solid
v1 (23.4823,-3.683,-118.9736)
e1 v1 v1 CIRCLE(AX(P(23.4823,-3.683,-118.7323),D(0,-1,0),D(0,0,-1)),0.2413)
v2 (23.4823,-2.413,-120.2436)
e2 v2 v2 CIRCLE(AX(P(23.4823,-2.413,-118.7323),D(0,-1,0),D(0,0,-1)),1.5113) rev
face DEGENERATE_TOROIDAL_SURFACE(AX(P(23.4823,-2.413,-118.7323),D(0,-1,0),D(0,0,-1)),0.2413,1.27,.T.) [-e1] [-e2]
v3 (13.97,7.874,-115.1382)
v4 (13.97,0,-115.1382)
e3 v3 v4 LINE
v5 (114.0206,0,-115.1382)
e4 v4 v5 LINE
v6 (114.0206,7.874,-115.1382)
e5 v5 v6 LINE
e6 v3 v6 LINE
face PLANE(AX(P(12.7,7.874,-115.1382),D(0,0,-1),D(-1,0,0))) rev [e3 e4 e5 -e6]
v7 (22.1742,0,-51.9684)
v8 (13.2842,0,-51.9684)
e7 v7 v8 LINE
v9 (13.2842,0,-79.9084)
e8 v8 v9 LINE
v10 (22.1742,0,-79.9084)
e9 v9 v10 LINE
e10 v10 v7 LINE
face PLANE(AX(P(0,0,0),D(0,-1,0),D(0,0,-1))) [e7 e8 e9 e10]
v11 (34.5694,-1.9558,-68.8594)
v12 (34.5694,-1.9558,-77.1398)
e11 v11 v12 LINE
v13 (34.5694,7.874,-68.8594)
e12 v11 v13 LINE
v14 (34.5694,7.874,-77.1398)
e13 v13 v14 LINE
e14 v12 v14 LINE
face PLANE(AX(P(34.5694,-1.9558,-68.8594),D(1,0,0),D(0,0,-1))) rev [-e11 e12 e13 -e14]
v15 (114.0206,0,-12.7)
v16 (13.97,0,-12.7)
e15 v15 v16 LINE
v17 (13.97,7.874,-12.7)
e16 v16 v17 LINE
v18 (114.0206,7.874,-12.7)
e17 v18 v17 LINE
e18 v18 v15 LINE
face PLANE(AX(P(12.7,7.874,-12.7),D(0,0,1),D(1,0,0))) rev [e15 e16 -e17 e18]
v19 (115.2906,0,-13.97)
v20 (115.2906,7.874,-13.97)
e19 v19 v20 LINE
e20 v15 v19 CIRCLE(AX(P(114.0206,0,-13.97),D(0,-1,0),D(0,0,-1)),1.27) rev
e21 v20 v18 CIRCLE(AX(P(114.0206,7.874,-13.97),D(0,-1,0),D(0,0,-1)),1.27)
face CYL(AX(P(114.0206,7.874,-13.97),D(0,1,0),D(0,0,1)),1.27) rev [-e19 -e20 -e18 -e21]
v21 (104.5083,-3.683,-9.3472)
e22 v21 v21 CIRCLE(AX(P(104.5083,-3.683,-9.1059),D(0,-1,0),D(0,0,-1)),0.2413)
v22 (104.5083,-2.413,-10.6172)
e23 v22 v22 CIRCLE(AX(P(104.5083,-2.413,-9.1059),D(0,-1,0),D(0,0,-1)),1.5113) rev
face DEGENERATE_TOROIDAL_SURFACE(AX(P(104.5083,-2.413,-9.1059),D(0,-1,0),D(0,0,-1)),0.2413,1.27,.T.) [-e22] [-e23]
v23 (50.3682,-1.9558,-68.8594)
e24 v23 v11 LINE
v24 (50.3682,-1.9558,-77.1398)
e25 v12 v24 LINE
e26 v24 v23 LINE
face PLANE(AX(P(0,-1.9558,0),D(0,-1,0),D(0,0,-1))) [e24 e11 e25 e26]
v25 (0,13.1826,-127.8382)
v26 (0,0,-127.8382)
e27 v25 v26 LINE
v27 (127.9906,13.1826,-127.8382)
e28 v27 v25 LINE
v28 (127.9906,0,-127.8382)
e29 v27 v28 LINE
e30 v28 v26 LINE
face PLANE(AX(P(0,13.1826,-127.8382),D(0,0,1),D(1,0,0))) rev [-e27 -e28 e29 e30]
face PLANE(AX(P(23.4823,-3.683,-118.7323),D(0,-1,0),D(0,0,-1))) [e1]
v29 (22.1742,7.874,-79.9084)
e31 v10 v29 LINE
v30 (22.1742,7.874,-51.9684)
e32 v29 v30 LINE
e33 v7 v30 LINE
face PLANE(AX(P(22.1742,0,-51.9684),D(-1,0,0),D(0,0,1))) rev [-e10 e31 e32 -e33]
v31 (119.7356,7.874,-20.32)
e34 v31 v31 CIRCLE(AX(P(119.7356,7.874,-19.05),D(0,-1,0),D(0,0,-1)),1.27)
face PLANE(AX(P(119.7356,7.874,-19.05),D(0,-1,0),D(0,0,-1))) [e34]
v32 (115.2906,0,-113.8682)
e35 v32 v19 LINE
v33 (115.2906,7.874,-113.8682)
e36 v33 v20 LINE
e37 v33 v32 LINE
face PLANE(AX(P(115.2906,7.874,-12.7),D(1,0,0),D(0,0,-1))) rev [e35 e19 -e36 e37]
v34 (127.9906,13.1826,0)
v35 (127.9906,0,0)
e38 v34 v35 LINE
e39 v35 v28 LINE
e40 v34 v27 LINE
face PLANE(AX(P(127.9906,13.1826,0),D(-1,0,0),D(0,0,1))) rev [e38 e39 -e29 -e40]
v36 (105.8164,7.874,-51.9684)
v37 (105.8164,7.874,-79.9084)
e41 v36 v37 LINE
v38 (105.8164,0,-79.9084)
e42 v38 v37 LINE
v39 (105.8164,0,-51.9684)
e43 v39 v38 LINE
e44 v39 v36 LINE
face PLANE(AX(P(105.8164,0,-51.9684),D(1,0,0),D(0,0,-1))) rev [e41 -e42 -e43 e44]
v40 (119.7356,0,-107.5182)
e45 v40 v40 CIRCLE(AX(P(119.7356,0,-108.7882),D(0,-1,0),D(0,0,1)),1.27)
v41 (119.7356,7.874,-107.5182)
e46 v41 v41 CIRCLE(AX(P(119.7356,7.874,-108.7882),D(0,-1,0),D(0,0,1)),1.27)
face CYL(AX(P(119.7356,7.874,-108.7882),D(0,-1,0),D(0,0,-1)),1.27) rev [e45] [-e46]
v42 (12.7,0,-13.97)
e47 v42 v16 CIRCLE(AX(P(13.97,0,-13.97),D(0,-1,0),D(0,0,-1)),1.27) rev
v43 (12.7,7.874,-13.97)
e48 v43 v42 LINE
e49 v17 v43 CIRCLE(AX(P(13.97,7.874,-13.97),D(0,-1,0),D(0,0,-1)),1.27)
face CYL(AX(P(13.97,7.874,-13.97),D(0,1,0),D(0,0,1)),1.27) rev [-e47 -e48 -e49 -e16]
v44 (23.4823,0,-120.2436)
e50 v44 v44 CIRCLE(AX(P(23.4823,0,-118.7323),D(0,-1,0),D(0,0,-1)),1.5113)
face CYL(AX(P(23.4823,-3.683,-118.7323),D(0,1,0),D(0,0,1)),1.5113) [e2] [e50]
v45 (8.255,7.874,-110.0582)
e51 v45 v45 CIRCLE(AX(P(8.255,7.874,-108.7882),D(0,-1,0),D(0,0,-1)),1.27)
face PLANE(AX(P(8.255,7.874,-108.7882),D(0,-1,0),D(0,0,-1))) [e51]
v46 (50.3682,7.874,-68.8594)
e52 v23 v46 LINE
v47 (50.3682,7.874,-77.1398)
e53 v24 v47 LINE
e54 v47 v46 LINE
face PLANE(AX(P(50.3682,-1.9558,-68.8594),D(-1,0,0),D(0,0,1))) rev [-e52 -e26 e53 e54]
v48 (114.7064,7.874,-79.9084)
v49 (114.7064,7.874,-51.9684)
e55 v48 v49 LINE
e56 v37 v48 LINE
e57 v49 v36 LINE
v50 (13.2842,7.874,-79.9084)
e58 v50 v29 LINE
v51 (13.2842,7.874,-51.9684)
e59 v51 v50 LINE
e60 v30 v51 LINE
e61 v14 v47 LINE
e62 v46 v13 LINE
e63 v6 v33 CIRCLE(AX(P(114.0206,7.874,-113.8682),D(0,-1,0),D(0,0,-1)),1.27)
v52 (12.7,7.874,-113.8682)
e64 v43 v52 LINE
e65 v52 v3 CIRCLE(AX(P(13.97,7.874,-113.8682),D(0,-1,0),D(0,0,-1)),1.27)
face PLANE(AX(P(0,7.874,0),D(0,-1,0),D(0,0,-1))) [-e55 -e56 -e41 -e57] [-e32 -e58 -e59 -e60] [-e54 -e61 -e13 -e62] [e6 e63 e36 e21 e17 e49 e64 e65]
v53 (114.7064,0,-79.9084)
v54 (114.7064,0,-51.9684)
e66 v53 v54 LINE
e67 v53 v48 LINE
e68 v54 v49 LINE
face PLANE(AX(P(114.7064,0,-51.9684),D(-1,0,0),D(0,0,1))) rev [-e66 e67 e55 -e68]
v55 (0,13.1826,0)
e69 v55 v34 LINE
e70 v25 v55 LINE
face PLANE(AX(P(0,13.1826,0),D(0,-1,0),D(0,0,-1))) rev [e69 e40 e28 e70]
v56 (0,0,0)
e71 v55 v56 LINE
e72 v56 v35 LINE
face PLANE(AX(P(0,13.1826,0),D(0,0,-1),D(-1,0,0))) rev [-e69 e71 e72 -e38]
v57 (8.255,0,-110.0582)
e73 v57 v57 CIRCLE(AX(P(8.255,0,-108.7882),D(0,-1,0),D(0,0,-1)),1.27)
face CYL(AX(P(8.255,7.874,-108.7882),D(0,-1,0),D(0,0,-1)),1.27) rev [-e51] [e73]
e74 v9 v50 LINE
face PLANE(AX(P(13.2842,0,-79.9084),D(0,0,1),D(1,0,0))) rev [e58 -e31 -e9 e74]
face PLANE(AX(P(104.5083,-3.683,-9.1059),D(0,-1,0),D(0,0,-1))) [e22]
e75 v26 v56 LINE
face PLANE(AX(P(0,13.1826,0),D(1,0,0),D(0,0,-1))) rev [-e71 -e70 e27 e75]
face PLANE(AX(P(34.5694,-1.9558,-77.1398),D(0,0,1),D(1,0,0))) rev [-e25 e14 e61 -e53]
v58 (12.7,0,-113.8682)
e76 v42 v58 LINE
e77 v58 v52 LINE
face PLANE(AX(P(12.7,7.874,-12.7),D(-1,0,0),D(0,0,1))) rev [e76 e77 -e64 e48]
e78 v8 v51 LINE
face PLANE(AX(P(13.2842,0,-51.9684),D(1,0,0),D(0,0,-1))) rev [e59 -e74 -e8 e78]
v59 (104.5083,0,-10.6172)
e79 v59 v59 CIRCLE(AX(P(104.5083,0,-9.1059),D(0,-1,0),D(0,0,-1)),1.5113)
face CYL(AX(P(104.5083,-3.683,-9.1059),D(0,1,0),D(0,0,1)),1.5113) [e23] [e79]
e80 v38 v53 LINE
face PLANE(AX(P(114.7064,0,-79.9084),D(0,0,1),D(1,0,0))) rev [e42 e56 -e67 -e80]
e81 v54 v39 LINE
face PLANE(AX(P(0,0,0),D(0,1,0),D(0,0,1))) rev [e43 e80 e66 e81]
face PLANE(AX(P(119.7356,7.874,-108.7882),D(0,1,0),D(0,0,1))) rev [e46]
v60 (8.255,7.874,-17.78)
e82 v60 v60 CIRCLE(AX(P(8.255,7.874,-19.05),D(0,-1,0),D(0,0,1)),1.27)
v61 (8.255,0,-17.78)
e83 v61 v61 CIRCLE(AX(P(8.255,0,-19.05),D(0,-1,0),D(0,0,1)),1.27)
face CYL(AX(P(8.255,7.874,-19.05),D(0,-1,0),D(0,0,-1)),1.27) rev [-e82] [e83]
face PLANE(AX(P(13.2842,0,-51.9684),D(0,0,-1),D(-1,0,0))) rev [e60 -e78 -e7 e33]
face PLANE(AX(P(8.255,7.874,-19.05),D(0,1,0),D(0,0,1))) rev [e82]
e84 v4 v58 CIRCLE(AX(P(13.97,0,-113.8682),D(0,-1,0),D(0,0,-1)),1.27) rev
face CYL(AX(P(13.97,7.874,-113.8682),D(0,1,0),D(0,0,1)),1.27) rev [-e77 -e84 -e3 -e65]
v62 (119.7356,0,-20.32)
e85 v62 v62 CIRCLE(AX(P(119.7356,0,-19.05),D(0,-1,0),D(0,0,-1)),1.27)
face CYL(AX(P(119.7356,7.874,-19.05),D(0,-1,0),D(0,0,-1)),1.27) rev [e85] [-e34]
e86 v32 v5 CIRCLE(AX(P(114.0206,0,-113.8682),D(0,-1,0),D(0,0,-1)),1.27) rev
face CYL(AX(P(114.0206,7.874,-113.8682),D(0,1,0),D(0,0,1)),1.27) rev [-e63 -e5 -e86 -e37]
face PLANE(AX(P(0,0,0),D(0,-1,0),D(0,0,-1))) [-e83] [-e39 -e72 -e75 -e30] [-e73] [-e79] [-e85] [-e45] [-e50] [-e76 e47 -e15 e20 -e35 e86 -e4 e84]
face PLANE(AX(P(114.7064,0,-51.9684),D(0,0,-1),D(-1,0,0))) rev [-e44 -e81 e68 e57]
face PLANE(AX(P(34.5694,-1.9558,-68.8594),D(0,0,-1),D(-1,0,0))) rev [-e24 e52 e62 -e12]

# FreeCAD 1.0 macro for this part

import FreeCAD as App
import Part
import Sketcher
Q = App.Units.Quantity


def edges_at(feature, points):
    """Names of the edges that pass closest to the given points."""
    edges = feature.Shape.Edges
    near = lambda p: min(range(len(edges)), key=lambda i: edges[i].distToShape(Part.Vertex(*p))[0])
    return sorted({f"Edge{near(p) + 1}" for p in points})


def add_polygon(sketch, points):
    """Adds a closed chain of lines whose ends are joined by coincident constraints."""
    first, n = sketch.GeometryCount, len(points)
    for a, b in zip(points, points[1:] + points[:1]):
        sketch.addGeometry(Part.LineSegment(App.Vector(*a, 0), App.Vector(*b, 0)), False)
    for i in range(n):
        sketch.addConstraint(Sketcher.Constraint("Coincident", first + i, 2, first + (i + 1) % n, 1))

doc = App.newDocument("Part")
params = doc.addObject("Spreadsheet::Sheet", "Params")
for row, (alias, value) in enumerate([
    ("sketch1_width", "5.039 in"),
    ("sketch1_height", "5.033 in"),
    ("pad1_length", "0.519 in"),
    ("sketch2_width", "4.039 in"),
    ("sketch2_height", "4.033 in"),
    ("pocket1_length", "0.31 in"),
    ("sketch3_diameter", "0.1 in"),
    ("pocket2_length", "0.31 in"),
    ("sketch4_width", "0.622 in"),
    ("sketch4_height", "0.326 in"),
    ("pad2_length", "0.387 in"),
    ("sketch5_height", "1.1 in"),
    ("sketch5_width", "0.35 in"),
    ("pad3_length", "0.31 in"),
    ("sketch6_diameter", "0.119 in"),
    ("pad4_length", "0.145 in"),
    ("fillet_radius", "0.05 in"),
    ("fillet2_radius", "0.05 in"),
    ("fillet3_radius", "0.05 in"),
    ("fillet4_radius", "0.05 in"),
    ("fillet5_radius", "0.05 in"),
    ("fillet6_radius", "0.05 in"),
], start=1):
    params.set(f"A{row}", alias)
    params.set(f"B{row}", "=" + value)
    params.setAlias(f"B{row}", alias)

body = doc.addObject("PartDesign::Body", "Body")

# Sketch on XZ plane
sketch1 = doc.addObject("Sketcher::SketchObject", "Sketch")
body.addObject(sketch1)
sketch1.AttachmentSupport = (doc.XZ_Plane, [""])
sketch1.MapMode = "FlatFace"
add_polygon(sketch1, [(0, -128), (0, 0), (128, 0), (128, -128)])  # lines 0-3
sketch1.addConstraint([
    Sketcher.Constraint("Vertical", 0),
    Sketcher.Constraint("Horizontal", 1),
    Sketcher.Constraint("Vertical", 2),
    Sketcher.Constraint("Horizontal", 3),
    Sketcher.Constraint("Coincident", 0, 2, -1, 1),
    Sketcher.Constraint("DistanceX", 1, 1, 1, 2, Q("5.039 in")),
    Sketcher.Constraint("DistanceY", 0, 1, 0, 2, Q("5.033 in")),
])
sketch1.setExpression("Constraints[9]", "Params.sketch1_width")
sketch1.setExpression("Constraints[10]", "Params.sketch1_height")
pad1 = doc.addObject("PartDesign::Pad", "Pad")
body.addObject(pad1)
pad1.Profile = sketch1
pad1.setExpression("Length", "Params.pad1_length")
pad1.Reversed = True

# Sketch on XZ plane
sketch2 = doc.addObject("Sketcher::SketchObject", "Sketch001")
body.addObject(sketch2)
sketch2.AttachmentSupport = (doc.XZ_Plane, [""])
sketch2.MapMode = "FlatFace"
add_polygon(sketch2, [(13, -13), (13, -115), (115, -115), (115, -13)])  # lines 0-3
sketch2.addConstraint([
    Sketcher.Constraint("Vertical", 0),
    Sketcher.Constraint("Horizontal", 1),
    Sketcher.Constraint("Vertical", 2),
    Sketcher.Constraint("Horizontal", 3),
    Sketcher.Constraint("DistanceX", -1, 1, 0, 2, Q("0.5 in")),
    Sketcher.Constraint("DistanceY", 2, 2, -1, 1, Q("0.5 in")),
    Sketcher.Constraint("DistanceX", 1, 1, 1, 2, Q("4.039 in")),
    Sketcher.Constraint("DistanceY", 0, 2, 0, 1, Q("4.033 in")),
])
sketch2.setExpression("Constraints[10]", "Params.sketch2_width")
sketch2.setExpression("Constraints[11]", "Params.sketch2_height")
pocket1 = doc.addObject("PartDesign::Pocket", "Pocket")
body.addObject(pocket1)
pocket1.Profile = sketch2
pocket1.setExpression("Length", "Params.pocket1_length")

# Sketch on XZ plane
sketch3 = doc.addObject("Sketcher::SketchObject", "Sketch002")
body.addObject(sketch3)
sketch3.AttachmentSupport = (doc.XZ_Plane, [""])
sketch3.MapMode = "FlatFace"
sketch3.addGeometry([
    Part.Circle(App.Vector(8.3, -108.8, 0), App.Vector(0, 0, 1), 1.3),
    Part.Circle(App.Vector(8.3, -19.1, 0), App.Vector(0, 0, 1), 1.3),
    Part.Circle(App.Vector(119.7, -108.8, 0), App.Vector(0, 0, 1), 1.3),
    Part.Circle(App.Vector(119.7, -19.1, 0), App.Vector(0, 0, 1), 1.3),
], False)
sketch3.addConstraint([
    Sketcher.Constraint("Equal", 0, 1),
    Sketcher.Constraint("Equal", 1, 2),
    Sketcher.Constraint("Equal", 2, 3),
    Sketcher.Constraint("Horizontal", 0, 3, 2, 3),
    Sketcher.Constraint("Horizontal", 1, 3, 3, 3),
    Sketcher.Constraint("Vertical", 0, 3, 1, 3),
    Sketcher.Constraint("Vertical", 2, 3, 3, 3),
    Sketcher.Constraint("Diameter", 0, Q("0.1 in")),
    Sketcher.Constraint("DistanceY", 1, 3, -1, 1, Q("0.75 in")),
    Sketcher.Constraint("DistanceX", -1, 1, 0, 3, Q("0.325 in")),
    Sketcher.Constraint("DistanceY", 0, 3, -1, 1, Q("4.283 in")),
    Sketcher.Constraint("DistanceX", -1, 1, 2, 3, Q("4.714 in")),
])
sketch3.setExpression("Constraints[7]", "Params.sketch3_diameter")
pocket2 = doc.addObject("PartDesign::Pocket", "Pocket001")
body.addObject(pocket2)
pocket2.Profile = sketch3
pocket2.setExpression("Length", "Params.pocket2_length")

# Sketch on XZ plane
sketch4 = doc.addObject("Sketcher::SketchObject", "Sketch003")
body.addObject(sketch4)
sketch4.AttachmentSupport = (doc.XZ_Plane, [""])
sketch4.MapMode = "FlatFace"
sketch4.AttachmentOffset = App.Placement(App.Vector(0, 0, -0.31 * 25.4), App.Rotation())
add_polygon(sketch4, [(50, -77), (50, -69), (35, -69), (35, -77)])  # lines 0-3
sketch4.addConstraint([
    Sketcher.Constraint("Vertical", 0),
    Sketcher.Constraint("Horizontal", 1),
    Sketcher.Constraint("Vertical", 2),
    Sketcher.Constraint("Horizontal", 3),
    Sketcher.Constraint("DistanceX", 1, 2, 1, 1, Q("0.622 in")),
    Sketcher.Constraint("DistanceY", 0, 1, 0, 2, Q("0.326 in")),
    Sketcher.Constraint("DistanceX", -1, 1, 0, 2, Q("1.983 in")),
    Sketcher.Constraint("DistanceY", 0, 2, -1, 1, Q("2.711 in")),
])
sketch4.setExpression("Constraints[8]", "Params.sketch4_width")
sketch4.setExpression("Constraints[9]", "Params.sketch4_height")
pad2 = doc.addObject("PartDesign::Pad", "Pad001")
body.addObject(pad2)
pad2.Profile = sketch4
pad2.setExpression("Length", "Params.pad2_length")

# Sketch on XZ plane
sketch5 = doc.addObject("Sketcher::SketchObject", "Sketch004")
body.addObject(sketch5)
sketch5.AttachmentSupport = (doc.XZ_Plane, [""])
sketch5.MapMode = "FlatFace"
sketch5.AttachmentOffset = App.Placement(App.Vector(0, 0, -0.31 * 25.4), App.Rotation())
add_polygon(sketch5, [(22, -80), (22, -52), (13, -52), (13, -80)])  # lines 0-3
add_polygon(sketch5, [(115, -80), (115, -52), (106, -52), (106, -80)])  # lines 4-7
sketch5.addConstraint([
    Sketcher.Constraint("Vertical", 0),
    Sketcher.Constraint("Horizontal", 1),
    Sketcher.Constraint("Vertical", 2),
    Sketcher.Constraint("Horizontal", 3),
    Sketcher.Constraint("Vertical", 4),
    Sketcher.Constraint("Horizontal", 5),
    Sketcher.Constraint("Vertical", 6),
    Sketcher.Constraint("Horizontal", 7),
    Sketcher.Constraint("Horizontal", 1, 2, 4, 2),
    Sketcher.Constraint("Horizontal", 3, 2, 6, 2),
    Sketcher.Constraint("Equal", 3, 5),
    Sketcher.Constraint("DistanceY", 0, 1, 0, 2, Q("1.1 in")),
    Sketcher.Constraint("DistanceX", 1, 2, 1, 1, Q("0.35 in")),
    Sketcher.Constraint("DistanceX", -1, 1, 0, 2, Q("0.873 in")),
    Sketcher.Constraint("DistanceY", 0, 2, -1, 1, Q("2.046 in")),
    Sketcher.Constraint("DistanceX", -1, 1, 4, 2, Q("4.516 in")),
])
sketch5.setExpression("Constraints[19]", "Params.sketch5_height")
sketch5.setExpression("Constraints[20]", "Params.sketch5_width")
pad3 = doc.addObject("PartDesign::Pad", "Pad002")
body.addObject(pad3)
pad3.Profile = sketch5
pad3.setExpression("Length", "Params.pad3_length")

# Sketch on XZ plane
sketch6 = doc.addObject("Sketcher::SketchObject", "Sketch005")
body.addObject(sketch6)
sketch6.AttachmentSupport = (doc.XZ_Plane, [""])
sketch6.MapMode = "FlatFace"
sketch6.addGeometry([
    Part.Circle(App.Vector(23.5, -118.7, 0), App.Vector(0, 0, 1), 1.5),
    Part.Circle(App.Vector(104.5, -9.1, 0), App.Vector(0, 0, 1), 1.5),
], False)
sketch6.addConstraint([
    Sketcher.Constraint("Equal", 0, 1),
    Sketcher.Constraint("Diameter", 0, Q("0.119 in")),
    Sketcher.Constraint("DistanceX", 0, 3, 1, 3, Q("3.19 in")),
    Sketcher.Constraint("DistanceY", 0, 3, 1, 3, Q("4.316 in")),
    Sketcher.Constraint("DistanceX", -1, 1, 0, 3, Q("0.9245 in")),
    Sketcher.Constraint("DistanceY", 0, 3, -1, 1, Q("4.6745 in")),
])
sketch6.setExpression("Constraints[1]", "Params.sketch6_diameter")
pad4 = doc.addObject("PartDesign::Pad", "Pad003")
body.addObject(pad4)
pad4.Profile = sketch6
pad4.setExpression("Length", "Params.pad4_length")
doc.recompute()

fillet = doc.addObject("PartDesign::Fillet", "Fillet")
body.addObject(fillet)
fillet.Base = (pad4, edges_at(pad4, [(12.7, 3.937, -115.138)]))
fillet.setExpression("Radius", "Params.fillet_radius")
doc.recompute()

fillet2 = doc.addObject("PartDesign::Fillet", "Fillet001")
body.addObject(fillet2)
fillet2.Base = (fillet, edges_at(fillet, [(12.7, 3.937, -12.7)]))
fillet2.setExpression("Radius", "Params.fillet2_radius")
doc.recompute()

fillet3 = doc.addObject("PartDesign::Fillet", "Fillet002")
body.addObject(fillet3)
fillet3.Base = (fillet2, edges_at(fillet2, [(115.291, 3.937, -12.7)]))
fillet3.setExpression("Radius", "Params.fillet3_radius")
doc.recompute()

fillet4 = doc.addObject("PartDesign::Fillet", "Fillet003")
body.addObject(fillet4)
fillet4.Base = (fillet3, edges_at(fillet3, [(115.291, 3.937, -115.138)]))
fillet4.setExpression("Radius", "Params.fillet4_radius")
doc.recompute()

fillet5 = doc.addObject("PartDesign::Fillet", "Fillet004")
body.addObject(fillet5)
fillet5.Base = (fillet4, edges_at(fillet4, [(24.994, -3.683, -118.732)]))
fillet5.setExpression("Radius", "Params.fillet5_radius")
doc.recompute()

fillet6 = doc.addObject("PartDesign::Fillet", "Fillet005")
body.addObject(fillet6)
fillet6.Base = (fillet5, edges_at(fillet5, [(106.02, -3.683, -9.106)]))
fillet6.setExpression("Radius", "Params.fillet6_radius")

doc.recompute()
